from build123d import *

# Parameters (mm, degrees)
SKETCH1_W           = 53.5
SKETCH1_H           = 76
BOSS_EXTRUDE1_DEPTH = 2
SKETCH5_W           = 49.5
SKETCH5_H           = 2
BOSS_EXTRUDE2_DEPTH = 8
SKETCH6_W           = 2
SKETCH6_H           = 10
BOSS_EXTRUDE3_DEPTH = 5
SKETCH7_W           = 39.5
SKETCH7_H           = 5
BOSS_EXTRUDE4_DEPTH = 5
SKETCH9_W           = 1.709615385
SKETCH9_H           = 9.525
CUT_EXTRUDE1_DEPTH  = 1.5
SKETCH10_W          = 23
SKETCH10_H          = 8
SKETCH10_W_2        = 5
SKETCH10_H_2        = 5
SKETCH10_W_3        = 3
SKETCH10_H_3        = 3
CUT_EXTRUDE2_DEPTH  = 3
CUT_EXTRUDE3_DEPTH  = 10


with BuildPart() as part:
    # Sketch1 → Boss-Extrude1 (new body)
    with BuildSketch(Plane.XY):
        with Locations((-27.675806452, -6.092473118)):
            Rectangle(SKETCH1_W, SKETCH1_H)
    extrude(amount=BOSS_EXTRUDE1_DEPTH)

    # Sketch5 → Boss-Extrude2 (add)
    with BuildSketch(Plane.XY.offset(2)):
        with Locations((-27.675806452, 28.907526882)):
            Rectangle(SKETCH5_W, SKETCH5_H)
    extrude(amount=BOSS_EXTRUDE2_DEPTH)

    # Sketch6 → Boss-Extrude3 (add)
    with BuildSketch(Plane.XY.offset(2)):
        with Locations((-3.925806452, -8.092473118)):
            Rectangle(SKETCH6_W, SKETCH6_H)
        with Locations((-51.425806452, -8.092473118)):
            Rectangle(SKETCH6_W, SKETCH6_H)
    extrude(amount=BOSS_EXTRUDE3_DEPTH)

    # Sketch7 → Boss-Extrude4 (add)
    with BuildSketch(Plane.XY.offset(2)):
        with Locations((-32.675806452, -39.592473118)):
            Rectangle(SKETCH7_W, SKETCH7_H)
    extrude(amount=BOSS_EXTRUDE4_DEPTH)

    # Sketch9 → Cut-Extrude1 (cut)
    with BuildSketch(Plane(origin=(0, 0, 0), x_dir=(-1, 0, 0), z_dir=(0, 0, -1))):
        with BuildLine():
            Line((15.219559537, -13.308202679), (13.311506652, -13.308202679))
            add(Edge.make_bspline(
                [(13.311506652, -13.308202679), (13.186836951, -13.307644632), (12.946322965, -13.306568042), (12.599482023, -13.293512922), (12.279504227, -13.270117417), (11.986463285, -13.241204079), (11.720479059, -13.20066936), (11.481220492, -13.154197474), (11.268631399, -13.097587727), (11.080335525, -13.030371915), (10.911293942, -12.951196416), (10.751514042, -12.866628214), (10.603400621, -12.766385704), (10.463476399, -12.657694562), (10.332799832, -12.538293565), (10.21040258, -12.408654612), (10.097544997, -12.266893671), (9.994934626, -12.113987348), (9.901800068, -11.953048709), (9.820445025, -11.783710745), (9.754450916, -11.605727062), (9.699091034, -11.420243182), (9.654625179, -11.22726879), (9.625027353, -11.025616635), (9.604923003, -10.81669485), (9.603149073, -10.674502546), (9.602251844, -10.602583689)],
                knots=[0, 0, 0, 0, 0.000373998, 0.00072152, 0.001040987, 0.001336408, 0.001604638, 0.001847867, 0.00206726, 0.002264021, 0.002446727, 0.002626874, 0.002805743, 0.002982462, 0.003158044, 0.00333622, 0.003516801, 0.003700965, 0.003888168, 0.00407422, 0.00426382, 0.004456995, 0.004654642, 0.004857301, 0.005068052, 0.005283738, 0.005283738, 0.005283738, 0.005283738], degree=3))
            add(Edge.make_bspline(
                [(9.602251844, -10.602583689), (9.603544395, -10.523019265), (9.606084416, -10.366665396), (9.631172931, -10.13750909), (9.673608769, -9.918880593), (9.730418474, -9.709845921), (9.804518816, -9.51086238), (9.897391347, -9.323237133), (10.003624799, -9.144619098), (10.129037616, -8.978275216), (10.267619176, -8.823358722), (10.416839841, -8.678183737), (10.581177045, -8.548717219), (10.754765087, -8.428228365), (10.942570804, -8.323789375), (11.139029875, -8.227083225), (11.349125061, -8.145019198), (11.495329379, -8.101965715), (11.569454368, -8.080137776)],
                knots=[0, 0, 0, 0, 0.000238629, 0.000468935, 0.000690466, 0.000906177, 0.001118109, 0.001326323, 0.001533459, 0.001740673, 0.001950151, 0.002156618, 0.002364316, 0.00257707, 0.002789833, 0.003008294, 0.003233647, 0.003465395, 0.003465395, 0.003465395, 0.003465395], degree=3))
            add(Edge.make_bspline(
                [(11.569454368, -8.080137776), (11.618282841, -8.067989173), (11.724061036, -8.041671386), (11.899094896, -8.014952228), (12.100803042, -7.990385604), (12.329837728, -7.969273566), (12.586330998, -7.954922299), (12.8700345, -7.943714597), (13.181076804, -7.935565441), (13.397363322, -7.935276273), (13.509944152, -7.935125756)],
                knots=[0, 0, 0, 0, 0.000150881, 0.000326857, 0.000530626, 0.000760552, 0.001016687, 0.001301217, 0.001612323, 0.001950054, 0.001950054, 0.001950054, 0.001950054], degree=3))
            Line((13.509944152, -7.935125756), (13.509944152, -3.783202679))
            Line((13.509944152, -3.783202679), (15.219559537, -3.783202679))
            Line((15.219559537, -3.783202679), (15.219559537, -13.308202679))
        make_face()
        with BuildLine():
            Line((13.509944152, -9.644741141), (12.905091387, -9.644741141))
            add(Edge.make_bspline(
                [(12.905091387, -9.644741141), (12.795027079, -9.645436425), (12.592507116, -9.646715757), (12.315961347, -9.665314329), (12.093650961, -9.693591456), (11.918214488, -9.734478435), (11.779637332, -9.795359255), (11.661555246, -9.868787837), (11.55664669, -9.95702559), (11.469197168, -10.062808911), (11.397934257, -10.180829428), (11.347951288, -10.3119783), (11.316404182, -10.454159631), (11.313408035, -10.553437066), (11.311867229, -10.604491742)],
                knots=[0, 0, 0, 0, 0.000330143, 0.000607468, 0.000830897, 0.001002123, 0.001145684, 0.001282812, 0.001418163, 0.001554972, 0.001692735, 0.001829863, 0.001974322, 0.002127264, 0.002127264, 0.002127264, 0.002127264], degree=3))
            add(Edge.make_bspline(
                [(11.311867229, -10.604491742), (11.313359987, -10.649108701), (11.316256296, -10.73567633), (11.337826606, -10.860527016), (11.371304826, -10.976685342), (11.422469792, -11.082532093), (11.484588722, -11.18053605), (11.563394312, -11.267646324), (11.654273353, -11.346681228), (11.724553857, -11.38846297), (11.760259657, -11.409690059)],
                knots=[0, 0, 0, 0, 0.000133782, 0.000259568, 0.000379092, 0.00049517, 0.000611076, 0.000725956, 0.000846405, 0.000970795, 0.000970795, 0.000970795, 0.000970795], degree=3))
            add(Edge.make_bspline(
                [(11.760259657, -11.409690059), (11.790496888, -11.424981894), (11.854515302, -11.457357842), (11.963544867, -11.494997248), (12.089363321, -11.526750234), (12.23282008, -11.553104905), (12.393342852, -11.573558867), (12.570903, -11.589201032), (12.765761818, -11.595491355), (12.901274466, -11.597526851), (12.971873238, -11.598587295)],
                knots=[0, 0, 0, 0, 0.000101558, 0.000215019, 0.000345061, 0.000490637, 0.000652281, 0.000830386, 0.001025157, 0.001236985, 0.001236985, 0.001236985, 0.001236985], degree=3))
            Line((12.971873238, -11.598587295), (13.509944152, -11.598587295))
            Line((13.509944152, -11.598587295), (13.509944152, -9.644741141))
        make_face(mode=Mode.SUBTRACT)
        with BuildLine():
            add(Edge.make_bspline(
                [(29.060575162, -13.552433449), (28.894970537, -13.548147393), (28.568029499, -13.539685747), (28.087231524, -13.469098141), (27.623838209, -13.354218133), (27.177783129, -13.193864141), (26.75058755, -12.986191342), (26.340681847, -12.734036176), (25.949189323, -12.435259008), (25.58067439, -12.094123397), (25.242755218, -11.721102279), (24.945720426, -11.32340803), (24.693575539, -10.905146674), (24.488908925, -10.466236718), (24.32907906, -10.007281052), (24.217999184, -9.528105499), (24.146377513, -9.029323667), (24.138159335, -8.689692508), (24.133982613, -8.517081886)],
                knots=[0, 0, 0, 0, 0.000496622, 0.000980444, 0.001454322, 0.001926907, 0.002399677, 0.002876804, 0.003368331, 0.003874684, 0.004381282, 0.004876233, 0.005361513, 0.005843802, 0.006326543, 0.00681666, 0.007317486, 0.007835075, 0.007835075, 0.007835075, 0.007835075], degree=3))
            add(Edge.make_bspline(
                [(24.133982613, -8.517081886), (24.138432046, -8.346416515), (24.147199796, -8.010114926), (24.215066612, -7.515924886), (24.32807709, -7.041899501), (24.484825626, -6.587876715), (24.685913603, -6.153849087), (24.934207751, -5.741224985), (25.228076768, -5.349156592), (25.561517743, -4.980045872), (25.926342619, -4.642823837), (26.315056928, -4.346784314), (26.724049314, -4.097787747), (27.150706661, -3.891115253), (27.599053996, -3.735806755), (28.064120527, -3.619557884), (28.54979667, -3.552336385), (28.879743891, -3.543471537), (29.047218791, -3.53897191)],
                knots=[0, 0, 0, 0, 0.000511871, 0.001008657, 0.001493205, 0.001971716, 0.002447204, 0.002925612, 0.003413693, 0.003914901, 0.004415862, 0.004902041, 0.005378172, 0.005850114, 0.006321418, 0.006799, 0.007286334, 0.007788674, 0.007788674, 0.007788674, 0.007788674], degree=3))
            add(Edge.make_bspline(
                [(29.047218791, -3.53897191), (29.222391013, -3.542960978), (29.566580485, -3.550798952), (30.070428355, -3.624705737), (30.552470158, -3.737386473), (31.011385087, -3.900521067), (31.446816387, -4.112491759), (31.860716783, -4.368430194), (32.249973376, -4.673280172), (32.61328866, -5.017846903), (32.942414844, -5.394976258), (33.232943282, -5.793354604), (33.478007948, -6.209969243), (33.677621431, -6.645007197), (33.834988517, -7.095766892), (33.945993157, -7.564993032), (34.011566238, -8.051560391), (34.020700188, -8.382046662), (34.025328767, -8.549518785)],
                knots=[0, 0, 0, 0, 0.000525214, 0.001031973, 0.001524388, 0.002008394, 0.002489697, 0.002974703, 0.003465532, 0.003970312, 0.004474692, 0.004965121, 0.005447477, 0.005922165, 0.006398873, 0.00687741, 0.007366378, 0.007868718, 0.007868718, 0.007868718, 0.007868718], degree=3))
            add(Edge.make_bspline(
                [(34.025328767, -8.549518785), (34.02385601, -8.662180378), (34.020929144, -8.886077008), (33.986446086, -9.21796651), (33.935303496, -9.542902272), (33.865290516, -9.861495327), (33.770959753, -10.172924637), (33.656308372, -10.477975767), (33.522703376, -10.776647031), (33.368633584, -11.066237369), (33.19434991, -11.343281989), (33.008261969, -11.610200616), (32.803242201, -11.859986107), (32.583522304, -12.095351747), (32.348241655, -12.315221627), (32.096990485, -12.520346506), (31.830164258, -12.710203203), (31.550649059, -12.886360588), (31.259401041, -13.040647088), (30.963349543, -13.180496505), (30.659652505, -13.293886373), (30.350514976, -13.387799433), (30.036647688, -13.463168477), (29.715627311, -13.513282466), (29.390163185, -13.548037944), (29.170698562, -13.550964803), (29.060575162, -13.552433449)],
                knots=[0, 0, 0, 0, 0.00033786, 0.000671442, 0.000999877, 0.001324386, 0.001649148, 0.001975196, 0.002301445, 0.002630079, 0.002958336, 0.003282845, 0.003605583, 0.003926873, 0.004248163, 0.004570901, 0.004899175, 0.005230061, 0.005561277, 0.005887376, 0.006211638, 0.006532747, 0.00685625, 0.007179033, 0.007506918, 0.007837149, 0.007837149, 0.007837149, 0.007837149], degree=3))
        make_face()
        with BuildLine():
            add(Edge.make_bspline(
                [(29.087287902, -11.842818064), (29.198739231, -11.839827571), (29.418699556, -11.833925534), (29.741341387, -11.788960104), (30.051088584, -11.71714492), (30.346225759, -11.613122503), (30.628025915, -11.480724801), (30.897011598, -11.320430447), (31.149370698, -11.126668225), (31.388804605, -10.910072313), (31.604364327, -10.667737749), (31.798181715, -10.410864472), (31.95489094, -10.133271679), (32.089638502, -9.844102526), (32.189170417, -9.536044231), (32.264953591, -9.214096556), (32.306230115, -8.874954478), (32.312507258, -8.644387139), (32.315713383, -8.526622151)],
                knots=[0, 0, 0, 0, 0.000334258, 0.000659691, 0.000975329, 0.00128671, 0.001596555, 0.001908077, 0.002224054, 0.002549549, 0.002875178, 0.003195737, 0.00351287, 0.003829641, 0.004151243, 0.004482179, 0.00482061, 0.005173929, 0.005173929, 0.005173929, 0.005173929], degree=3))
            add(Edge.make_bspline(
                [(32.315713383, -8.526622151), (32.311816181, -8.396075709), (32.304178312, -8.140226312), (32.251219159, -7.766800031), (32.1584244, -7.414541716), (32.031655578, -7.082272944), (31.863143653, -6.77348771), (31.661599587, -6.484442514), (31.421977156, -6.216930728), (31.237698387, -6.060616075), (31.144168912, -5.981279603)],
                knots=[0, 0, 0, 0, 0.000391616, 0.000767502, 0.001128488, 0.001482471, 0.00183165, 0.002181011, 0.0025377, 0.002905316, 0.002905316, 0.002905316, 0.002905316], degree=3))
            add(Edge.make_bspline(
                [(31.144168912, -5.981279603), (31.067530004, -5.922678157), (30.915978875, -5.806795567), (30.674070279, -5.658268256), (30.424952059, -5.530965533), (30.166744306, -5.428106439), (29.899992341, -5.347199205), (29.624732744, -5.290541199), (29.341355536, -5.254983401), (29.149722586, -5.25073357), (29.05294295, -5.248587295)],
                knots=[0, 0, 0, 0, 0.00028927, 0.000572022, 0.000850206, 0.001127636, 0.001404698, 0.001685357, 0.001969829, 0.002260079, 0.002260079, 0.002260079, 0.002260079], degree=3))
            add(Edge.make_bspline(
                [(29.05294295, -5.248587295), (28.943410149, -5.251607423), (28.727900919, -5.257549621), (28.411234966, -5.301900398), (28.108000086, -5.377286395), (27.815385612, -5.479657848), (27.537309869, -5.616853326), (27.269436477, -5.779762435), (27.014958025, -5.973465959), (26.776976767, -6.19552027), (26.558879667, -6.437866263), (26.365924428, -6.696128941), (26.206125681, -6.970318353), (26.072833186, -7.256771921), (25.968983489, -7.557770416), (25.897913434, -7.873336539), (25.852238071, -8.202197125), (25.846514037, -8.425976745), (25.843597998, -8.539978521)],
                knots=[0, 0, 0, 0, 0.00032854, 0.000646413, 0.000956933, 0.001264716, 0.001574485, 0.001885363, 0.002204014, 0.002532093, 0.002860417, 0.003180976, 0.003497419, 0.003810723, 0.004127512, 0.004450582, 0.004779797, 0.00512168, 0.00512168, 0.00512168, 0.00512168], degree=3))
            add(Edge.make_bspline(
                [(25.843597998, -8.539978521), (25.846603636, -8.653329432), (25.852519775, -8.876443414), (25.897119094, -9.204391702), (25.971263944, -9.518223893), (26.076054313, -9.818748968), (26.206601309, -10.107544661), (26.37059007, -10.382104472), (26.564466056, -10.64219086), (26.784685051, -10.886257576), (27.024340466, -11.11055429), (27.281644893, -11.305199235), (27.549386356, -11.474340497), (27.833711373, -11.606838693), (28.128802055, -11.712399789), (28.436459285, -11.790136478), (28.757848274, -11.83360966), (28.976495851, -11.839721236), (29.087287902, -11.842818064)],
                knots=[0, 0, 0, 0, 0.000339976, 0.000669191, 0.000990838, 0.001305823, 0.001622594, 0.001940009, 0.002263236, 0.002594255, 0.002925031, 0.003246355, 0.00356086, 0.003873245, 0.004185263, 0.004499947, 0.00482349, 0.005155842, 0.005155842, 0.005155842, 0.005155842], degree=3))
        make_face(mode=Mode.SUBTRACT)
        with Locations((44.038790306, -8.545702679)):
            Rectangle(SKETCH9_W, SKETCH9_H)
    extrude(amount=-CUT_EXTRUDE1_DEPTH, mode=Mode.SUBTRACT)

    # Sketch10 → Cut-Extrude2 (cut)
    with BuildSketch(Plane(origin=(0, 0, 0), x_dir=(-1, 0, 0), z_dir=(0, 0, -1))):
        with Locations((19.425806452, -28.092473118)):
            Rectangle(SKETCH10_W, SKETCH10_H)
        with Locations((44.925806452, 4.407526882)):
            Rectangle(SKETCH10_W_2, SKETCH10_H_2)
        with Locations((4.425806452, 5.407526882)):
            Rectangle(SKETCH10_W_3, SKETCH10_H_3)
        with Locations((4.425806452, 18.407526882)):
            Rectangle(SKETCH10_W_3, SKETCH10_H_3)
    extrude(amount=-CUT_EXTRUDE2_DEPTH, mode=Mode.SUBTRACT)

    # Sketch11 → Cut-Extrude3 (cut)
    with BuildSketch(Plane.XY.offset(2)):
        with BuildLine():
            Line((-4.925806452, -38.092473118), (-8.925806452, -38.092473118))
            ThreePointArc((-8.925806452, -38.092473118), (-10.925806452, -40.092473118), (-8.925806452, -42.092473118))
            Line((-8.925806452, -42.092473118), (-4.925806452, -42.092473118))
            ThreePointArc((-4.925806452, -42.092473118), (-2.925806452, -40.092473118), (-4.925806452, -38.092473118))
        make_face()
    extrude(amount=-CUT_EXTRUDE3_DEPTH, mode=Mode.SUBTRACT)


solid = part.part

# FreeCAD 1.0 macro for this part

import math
import FreeCAD as App
import Part
import Sketcher
from FreeCAD import Vector

doc = App.newDocument("Part")
body = doc.addObject("PartDesign::Body", "Body")

sketch1 = body.newObject("Sketcher::SketchObject", "Sketch")
sketch1.AttachmentSupport = (doc.getObject("XY_Plane"), [""])
sketch1.MapMode = "FlatFace"
sketch1.addGeometry(Part.LineSegment(Vector(-54, 32, 0), Vector(-54, -44, 0)), False)
sketch1.addGeometry(Part.LineSegment(Vector(-54, -44, 0), Vector(-1, -44, 0)), False)
sketch1.addGeometry(Part.LineSegment(Vector(-1, -44, 0), Vector(-1, 32, 0)), False)
sketch1.addGeometry(Part.LineSegment(Vector(-1, 32, 0), Vector(-54, 32, 0)), False)
sketch1.addConstraint(Sketcher.Constraint("Coincident", 0, 2, 1, 1))
sketch1.addConstraint(Sketcher.Constraint("Coincident", 1, 2, 2, 1))
sketch1.addConstraint(Sketcher.Constraint("Coincident", 2, 2, 3, 1))
sketch1.addConstraint(Sketcher.Constraint("Coincident", 3, 2, 0, 1))
sketch1.addConstraint(Sketcher.Constraint("Vertical", 0))
sketch1.addConstraint(Sketcher.Constraint("Horizontal", 1))
sketch1.addConstraint(Sketcher.Constraint("Vertical", 2))
sketch1.addConstraint(Sketcher.Constraint("Horizontal", 3))
sketch1.addConstraint(Sketcher.Constraint("DistanceY", 0, 2, 0, 1, 76.0))
sketch1.addConstraint(Sketcher.Constraint("DistanceX", 1, 1, 1, 2, 53.5))
sketch1.addConstraint(Sketcher.Constraint("DistanceX", 0, 2, -1, 1, 54.425806))
sketch1.addConstraint(Sketcher.Constraint("DistanceY", 0, 2, -1, 1, 44.092473))
pad1 = body.newObject("PartDesign::Pad", "Pad")
pad1.Profile = sketch1
pad1.Length = 2

sketch2 = body.newObject("Sketcher::SketchObject", "Sketch001")
sketch2.AttachmentSupport = (doc.getObject("XY_Plane"), [""])
sketch2.MapMode = "FlatFace"
sketch2.AttachmentOffset = App.Placement(Vector(0, 0, 2), App.Rotation())
sketch2.addGeometry(Part.LineSegment(Vector(-52.4, 29.9, 0), Vector(-52.4, 27.9, 0)), False)
sketch2.addGeometry(Part.LineSegment(Vector(-52.4, 27.9, 0), Vector(-2.9, 27.9, 0)), False)
sketch2.addGeometry(Part.LineSegment(Vector(-2.9, 27.9, 0), Vector(-2.9, 29.9, 0)), False)
sketch2.addGeometry(Part.LineSegment(Vector(-2.9, 29.9, 0), Vector(-52.4, 29.9, 0)), False)
sketch2.addConstraint(Sketcher.Constraint("Coincident", 0, 2, 1, 1))
sketch2.addConstraint(Sketcher.Constraint("Coincident", 1, 2, 2, 1))
sketch2.addConstraint(Sketcher.Constraint("Coincident", 2, 2, 3, 1))
sketch2.addConstraint(Sketcher.Constraint("Coincident", 3, 2, 0, 1))
sketch2.addConstraint(Sketcher.Constraint("Vertical", 0))
sketch2.addConstraint(Sketcher.Constraint("Horizontal", 1))
sketch2.addConstraint(Sketcher.Constraint("Vertical", 2))
sketch2.addConstraint(Sketcher.Constraint("Horizontal", 3))
sketch2.addConstraint(Sketcher.Constraint("DistanceY", 0, 2, 0, 1, 2.0))
sketch2.addConstraint(Sketcher.Constraint("DistanceX", 1, 1, 1, 2, 49.5))
sketch2.addConstraint(Sketcher.Constraint("DistanceX", 0, 2, -1, 1, 52.425806))
sketch2.addConstraint(Sketcher.Constraint("DistanceY", -1, 1, 0, 2, 27.907527))
pad2 = body.newObject("PartDesign::Pad", "Pad001")
pad2.Profile = sketch2
pad2.Length = 8

sketch3 = body.newObject("Sketcher::SketchObject", "Sketch002")
sketch3.AttachmentSupport = (doc.getObject("XY_Plane"), [""])
sketch3.MapMode = "FlatFace"
sketch3.AttachmentOffset = App.Placement(Vector(0, 0, 2), App.Rotation())
sketch3.addGeometry(Part.LineSegment(Vector(-4.9, -3.1, 0), Vector(-4.9, -13.1, 0)), False)
sketch3.addGeometry(Part.LineSegment(Vector(-4.9, -13.1, 0), Vector(-2.9, -13.1, 0)), False)
sketch3.addGeometry(Part.LineSegment(Vector(-2.9, -13.1, 0), Vector(-2.9, -3.1, 0)), False)
sketch3.addGeometry(Part.LineSegment(Vector(-2.9, -3.1, 0), Vector(-4.9, -3.1, 0)), False)
sketch3.addGeometry(Part.LineSegment(Vector(-52.4, -3.1, 0), Vector(-52.4, -13.1, 0)), False)
sketch3.addGeometry(Part.LineSegment(Vector(-52.4, -13.1, 0), Vector(-50.4, -13.1, 0)), False)
sketch3.addGeometry(Part.LineSegment(Vector(-50.4, -13.1, 0), Vector(-50.4, -3.1, 0)), False)
sketch3.addGeometry(Part.LineSegment(Vector(-50.4, -3.1, 0), Vector(-52.4, -3.1, 0)), False)
sketch3.addConstraint(Sketcher.Constraint("Coincident", 0, 2, 1, 1))
sketch3.addConstraint(Sketcher.Constraint("Coincident", 1, 2, 2, 1))
sketch3.addConstraint(Sketcher.Constraint("Coincident", 2, 2, 3, 1))
sketch3.addConstraint(Sketcher.Constraint("Coincident", 3, 2, 0, 1))
sketch3.addConstraint(Sketcher.Constraint("Coincident", 4, 2, 5, 1))
sketch3.addConstraint(Sketcher.Constraint("Coincident", 5, 2, 6, 1))
sketch3.addConstraint(Sketcher.Constraint("Coincident", 6, 2, 7, 1))
sketch3.addConstraint(Sketcher.Constraint("Coincident", 7, 2, 4, 1))
sketch3.addConstraint(Sketcher.Constraint("Vertical", 0))
sketch3.addConstraint(Sketcher.Constraint("Horizontal", 1))
sketch3.addConstraint(Sketcher.Constraint("Vertical", 2))
sketch3.addConstraint(Sketcher.Constraint("Horizontal", 3))
sketch3.addConstraint(Sketcher.Constraint("Vertical", 4))
sketch3.addConstraint(Sketcher.Constraint("Horizontal", 5))
sketch3.addConstraint(Sketcher.Constraint("Vertical", 6))
sketch3.addConstraint(Sketcher.Constraint("Horizontal", 7))
sketch3.addConstraint(Sketcher.Constraint("Horizontal", 1, 2, 4, 2))
sketch3.addConstraint(Sketcher.Constraint("Horizontal", 3, 2, 6, 2))
sketch3.addConstraint(Sketcher.Constraint("Equal", 3, 5))
sketch3.addConstraint(Sketcher.Constraint("DistanceX", 1, 1, 1, 2, 2.0))
sketch3.addConstraint(Sketcher.Constraint("DistanceY", 0, 2, 0, 1, 10.0))
sketch3.addConstraint(Sketcher.Constraint("DistanceX", 4, 2, 0, 2, 47.5))
sketch3.addConstraint(Sketcher.Constraint("DistanceX", 0, 2, -1, 1, 4.925806))
sketch3.addConstraint(Sketcher.Constraint("DistanceY", 0, 2, -1, 1, 13.092473))
pad3 = body.newObject("PartDesign::Pad", "Pad002")
pad3.Profile = sketch3
pad3.Length = 5

sketch4 = body.newObject("Sketcher::SketchObject", "Sketch003")
sketch4.AttachmentSupport = (doc.getObject("XY_Plane"), [""])
sketch4.MapMode = "FlatFace"
sketch4.AttachmentOffset = App.Placement(Vector(0, 0, 2), App.Rotation())
sketch4.addGeometry(Part.LineSegment(Vector(-52, -37, 0), Vector(-52, -42, 0)), False)
sketch4.addGeometry(Part.LineSegment(Vector(-52, -42, 0), Vector(-13, -42, 0)), False)
sketch4.addGeometry(Part.LineSegment(Vector(-13, -42, 0), Vector(-13, -37, 0)), False)
sketch4.addGeometry(Part.LineSegment(Vector(-13, -37, 0), Vector(-52, -37, 0)), False)
sketch4.addConstraint(Sketcher.Constraint("Coincident", 0, 2, 1, 1))
sketch4.addConstraint(Sketcher.Constraint("Coincident", 1, 2, 2, 1))
sketch4.addConstraint(Sketcher.Constraint("Coincident", 2, 2, 3, 1))
sketch4.addConstraint(Sketcher.Constraint("Coincident", 3, 2, 0, 1))
sketch4.addConstraint(Sketcher.Constraint("Vertical", 0))
sketch4.addConstraint(Sketcher.Constraint("Horizontal", 1))
sketch4.addConstraint(Sketcher.Constraint("Vertical", 2))
sketch4.addConstraint(Sketcher.Constraint("Horizontal", 3))
sketch4.addConstraint(Sketcher.Constraint("DistanceY", 0, 2, 0, 1, 5.0))
sketch4.addConstraint(Sketcher.Constraint("DistanceX", 1, 1, 1, 2, 39.5))
sketch4.addConstraint(Sketcher.Constraint("DistanceX", 0, 2, -1, 1, 52.425806))
sketch4.addConstraint(Sketcher.Constraint("DistanceY", 0, 2, -1, 1, 42.092473))
pad4 = body.newObject("PartDesign::Pad", "Pad003")
pad4.Profile = sketch4
pad4.Length = 5

sketch5 = body.newObject("Sketcher::SketchObject", "Sketch004")
sketch5.AttachmentSupport = (doc.getObject("XY_Plane"), [""])
sketch5.MapMode = "FlatFace"
sketch5.addGeometry(Part.LineSegment(Vector(-13.311507, -13.308203, 0), Vector(-15.21956, -13.308203, 0)), False)
sketch5.addGeometry(Part.LineSegment(Vector(-15.21956, -13.308203, 0), Vector(-15.21956, -3.783203, 0)), False)
sketch5.addGeometry(Part.LineSegment(Vector(-15.21956, -3.783203, 0), Vector(-13.509944, -3.783203, 0)), False)
sketch5.addGeometry(Part.LineSegment(Vector(-13.509944, -3.783203, 0), Vector(-13.509944, -7.935126, 0)), False)
sketch5.addGeometry(Part.BSplineCurve([Vector(-11.569454, -8.080138, 0), Vector(-11.618283, -8.067989, 0), Vector(-11.724061, -8.041671, 0), Vector(-11.899095, -8.014952, 0), Vector(-12.100803, -7.990386, 0), Vector(-12.329838, -7.969274, 0), Vector(-12.586331, -7.954922, 0), Vector(-12.870034, -7.943715, 0), Vector(-13.181077, -7.935565, 0), Vector(-13.397363, -7.935276, 0), Vector(-13.509944, -7.935126, 0)], [4, 1, 1, 1, 1, 1, 1, 1, 4], [0, 0.000150881, 0.000326857, 0.000530626, 0.000760552, 0.001016687, 0.001301217, 0.001612323, 0.001950054], False, 3, [1, 1, 1, 1, 1, 1, 1, 1, 1, 1, 1], False), False)
sketch5.addGeometry(Part.BSplineCurve([Vector(-9.602252, -10.602584, 0), Vector(-9.603544, -10.523019, 0), Vector(-9.606084, -10.366665, 0), Vector(-9.631173, -10.137509, 0), Vector(-9.673609, -9.918881, 0), Vector(-9.730418, -9.709846, 0), Vector(-9.804519, -9.510862, 0), Vector(-9.897391, -9.323237, 0), Vector(-10.003625, -9.144619, 0), Vector(-10.129038, -8.978275, 0), Vector(-10.267619, -8.823359, 0), Vector(-10.41684, -8.678184, 0), Vector(-10.581177, -8.548717, 0), Vector(-10.754765, -8.428228, 0), Vector(-10.942571, -8.323789, 0), Vector(-11.13903, -8.227083, 0), Vector(-11.349125, -8.145019, 0), Vector(-11.495329, -8.101966, 0), Vector(-11.569454, -8.080138, 0)], [4, 1, 1, 1, 1, 1, 1, 1, 1, 1, 1, 1, 1, 1, 1, 1, 4], [0, 0.000238629, 0.000468935, 0.000690466, 0.000906177, 0.001118109, 0.001326323, 0.001533459, 0.001740673, 0.001950151, 0.002156618, 0.002364316, 0.00257707, 0.002789833, 0.003008294, 0.003233647, 0.003465395], False, 3, [1, 1, 1, 1, 1, 1, 1, 1, 1, 1, 1, 1, 1, 1, 1, 1, 1, 1, 1], False), False)
sketch5.addGeometry(Part.BSplineCurve([Vector(-13.311507, -13.308203, 0), Vector(-13.186837, -13.307645, 0), Vector(-12.946323, -13.306568, 0), Vector(-12.599482, -13.293513, 0), Vector(-12.279504, -13.270117, 0), Vector(-11.986463, -13.241204, 0), Vector(-11.720479, -13.200669, 0), Vector(-11.48122, -13.154197, 0), Vector(-11.268631, -13.097588, 0), Vector(-11.080336, -13.030372, 0), Vector(-10.911294, -12.951196, 0), Vector(-10.751514, -12.866628, 0), Vector(-10.603401, -12.766386, 0), Vector(-10.463476, -12.657695, 0), Vector(-10.3328, -12.538294, 0), Vector(-10.210403, -12.408655, 0), Vector(-10.097545, -12.266894, 0), Vector(-9.994935, -12.113987, 0), Vector(-9.9018, -11.953049, 0), Vector(-9.820445, -11.783711, 0), Vector(-9.754451, -11.605727, 0), Vector(-9.699091, -11.420243, 0), Vector(-9.654625, -11.227269, 0), Vector(-9.625027, -11.025617, 0), Vector(-9.604923, -10.816695, 0), Vector(-9.603149, -10.674503, 0), Vector(-9.602252, -10.602584, 0)], [4, 1, 1, 1, 1, 1, 1, 1, 1, 1, 1, 1, 1, 1, 1, 1, 1, 1, 1, 1, 1, 1, 1, 1, 4], [0, 0.000373998, 0.00072152, 0.001040987, 0.001336408, 0.001604638, 0.001847867, 0.00206726, 0.002264021, 0.002446727, 0.002626874, 0.002805743, 0.002982462, 0.003158044, 0.00333622, 0.003516801, 0.003700965, 0.003888168, 0.00407422, 0.00426382, 0.004456995, 0.004654642, 0.004857301, 0.005068052, 0.005283738], False, 3, [1, 1, 1, 1, 1, 1, 1, 1, 1, 1, 1, 1, 1, 1, 1, 1, 1, 1, 1, 1, 1, 1, 1, 1, 1, 1, 1], False), False)
sketch5.addGeometry(Part.LineSegment(Vector(-13.509944, -9.644741, 0), Vector(-13.509944, -11.598587, 0)), False)
sketch5.addGeometry(Part.LineSegment(Vector(-13.509944, -11.598587, 0), Vector(-12.971873, -11.598587, 0)), False)
sketch5.addGeometry(Part.BSplineCurve([Vector(-11.76026, -11.40969, 0), Vector(-11.790497, -11.424982, 0), Vector(-11.854515, -11.457358, 0), Vector(-11.963545, -11.494997, 0), Vector(-12.089363, -11.52675, 0), Vector(-12.23282, -11.553105, 0), Vector(-12.393343, -11.573559, 0), Vector(-12.570903, -11.589201, 0), Vector(-12.765762, -11.595491, 0), Vector(-12.901274, -11.597527, 0), Vector(-12.971873, -11.598587, 0)], [4, 1, 1, 1, 1, 1, 1, 1, 4], [0, 0.000101558, 0.000215019, 0.000345061, 0.000490637, 0.000652281, 0.000830386, 0.001025157, 0.001236985], False, 3, [1, 1, 1, 1, 1, 1, 1, 1, 1, 1, 1], False), False)
sketch5.addGeometry(Part.BSplineCurve([Vector(-11.311867, -10.604492, 0), Vector(-11.31336, -10.649109, 0), Vector(-11.316256, -10.735676, 0), Vector(-11.337827, -10.860527, 0), Vector(-11.371305, -10.976685, 0), Vector(-11.42247, -11.082532, 0), Vector(-11.484589, -11.180536, 0), Vector(-11.563394, -11.267646, 0), Vector(-11.654273, -11.346681, 0), Vector(-11.724554, -11.388463, 0), Vector(-11.76026, -11.40969, 0)], [4, 1, 1, 1, 1, 1, 1, 1, 4], [0, 0.000133782, 0.000259568, 0.000379092, 0.00049517, 0.000611076, 0.000725956, 0.000846405, 0.000970795], False, 3, [1, 1, 1, 1, 1, 1, 1, 1, 1, 1, 1], False), False)
sketch5.addGeometry(Part.BSplineCurve([Vector(-12.905091, -9.644741, 0), Vector(-12.795027, -9.645436, 0), Vector(-12.592507, -9.646716, 0), Vector(-12.315961, -9.665314, 0), Vector(-12.093651, -9.693591, 0), Vector(-11.918214, -9.734478, 0), Vector(-11.779637, -9.795359, 0), Vector(-11.661555, -9.868788, 0), Vector(-11.556647, -9.957026, 0), Vector(-11.469197, -10.062809, 0), Vector(-11.397934, -10.180829, 0), Vector(-11.347951, -10.311978, 0), Vector(-11.316404, -10.45416, 0), Vector(-11.313408, -10.553437, 0), Vector(-11.311867, -10.604492, 0)], [4, 1, 1, 1, 1, 1, 1, 1, 1, 1, 1, 1, 4], [0, 0.000330143, 0.000607468, 0.000830897, 0.001002123, 0.001145684, 0.001282812, 0.001418163, 0.001554972, 0.001692735, 0.001829863, 0.001974322, 0.002127264], False, 3, [1, 1, 1, 1, 1, 1, 1, 1, 1, 1, 1, 1, 1, 1, 1], False), False)
sketch5.addGeometry(Part.LineSegment(Vector(-12.905091, -9.644741, 0), Vector(-13.509944, -9.644741, 0)), False)
sketch5.addGeometry(Part.BSplineCurve([Vector(-29.060575, -13.552433, 0), Vector(-28.894971, -13.548147, 0), Vector(-28.568029, -13.539686, 0), Vector(-28.087232, -13.469098, 0), Vector(-27.623838, -13.354218, 0), Vector(-27.177783, -13.193864, 0), Vector(-26.750588, -12.986191, 0), Vector(-26.340682, -12.734036, 0), Vector(-25.949189, -12.435259, 0), Vector(-25.580674, -12.094123, 0), Vector(-25.242755, -11.721102, 0), Vector(-24.94572, -11.323408, 0), Vector(-24.693576, -10.905147, 0), Vector(-24.488909, -10.466237, 0), Vector(-24.329079, -10.007281, 0), Vector(-24.217999, -9.528105, 0), Vector(-24.146378, -9.029324, 0), Vector(-24.138159, -8.689693, 0), Vector(-24.133983, -8.517082, 0)], [4, 1, 1, 1, 1, 1, 1, 1, 1, 1, 1, 1, 1, 1, 1, 1, 4], [0, 0.000496622, 0.000980444, 0.001454322, 0.001926907, 0.002399677, 0.002876804, 0.003368331, 0.003874684, 0.004381282, 0.004876233, 0.005361513, 0.005843802, 0.006326543, 0.00681666, 0.007317486, 0.007835075], False, 3, [1, 1, 1, 1, 1, 1, 1, 1, 1, 1, 1, 1, 1, 1, 1, 1, 1, 1, 1], False), False)
sketch5.addGeometry(Part.BSplineCurve([Vector(-34.025329, -8.549519, 0), Vector(-34.023856, -8.66218, 0), Vector(-34.020929, -8.886077, 0), Vector(-33.986446, -9.217967, 0), Vector(-33.935303, -9.542902, 0), Vector(-33.865291, -9.861495, 0), Vector(-33.77096, -10.172925, 0), Vector(-33.656308, -10.477976, 0), Vector(-33.522703, -10.776647, 0), Vector(-33.368634, -11.066237, 0), Vector(-33.19435, -11.343282, 0), Vector(-33.008262, -11.610201, 0), Vector(-32.803242, -11.859986, 0), Vector(-32.583522, -12.095352, 0), Vector(-32.348242, -12.315222, 0), Vector(-32.09699, -12.520347, 0), Vector(-31.830164, -12.710203, 0), Vector(-31.550649, -12.886361, 0), Vector(-31.259401, -13.040647, 0), Vector(-30.96335, -13.180497, 0), Vector(-30.659653, -13.293886, 0), Vector(-30.350515, -13.387799, 0), Vector(-30.036648, -13.463168, 0), Vector(-29.715627, -13.513282, 0), Vector(-29.390163, -13.548038, 0), Vector(-29.170699, -13.550965, 0), Vector(-29.060575, -13.552433, 0)], [4, 1, 1, 1, 1, 1, 1, 1, 1, 1, 1, 1, 1, 1, 1, 1, 1, 1, 1, 1, 1, 1, 1, 1, 4], [0, 0.00033786, 0.000671442, 0.000999877, 0.001324386, 0.001649148, 0.001975196, 0.002301445, 0.002630079, 0.002958336, 0.003282845, 0.003605583, 0.003926873, 0.004248163, 0.004570901, 0.004899175, 0.005230061, 0.005561277, 0.005887376, 0.006211638, 0.006532747, 0.00685625, 0.007179033, 0.007506918, 0.007837149], False, 3, [1, 1, 1, 1, 1, 1, 1, 1, 1, 1, 1, 1, 1, 1, 1, 1, 1, 1, 1, 1, 1, 1, 1, 1, 1, 1, 1], False), False)
sketch5.addGeometry(Part.BSplineCurve([Vector(-29.047219, -3.538972, 0), Vector(-29.222391, -3.542961, 0), Vector(-29.56658, -3.550799, 0), Vector(-30.070428, -3.624706, 0), Vector(-30.55247, -3.737386, 0), Vector(-31.011385, -3.900521, 0), Vector(-31.446816, -4.112492, 0), Vector(-31.860717, -4.36843, 0), Vector(-32.249973, -4.67328, 0), Vector(-32.613289, -5.017847, 0), Vector(-32.942415, -5.394976, 0), Vector(-33.232943, -5.793355, 0), Vector(-33.478008, -6.209969, 0), Vector(-33.677621, -6.645007, 0), Vector(-33.834989, -7.095767, 0), Vector(-33.945993, -7.564993, 0), Vector(-34.011566, -8.05156, 0), Vector(-34.0207, -8.382047, 0), Vector(-34.025329, -8.549519, 0)], [4, 1, 1, 1, 1, 1, 1, 1, 1, 1, 1, 1, 1, 1, 1, 1, 4], [0, 0.000525214, 0.001031973, 0.001524388, 0.002008394, 0.002489697, 0.002974703, 0.003465532, 0.003970312, 0.004474692, 0.004965121, 0.005447477, 0.005922165, 0.006398873, 0.00687741, 0.007366378, 0.007868718], False, 3, [1, 1, 1, 1, 1, 1, 1, 1, 1, 1, 1, 1, 1, 1, 1, 1, 1, 1, 1], False), False)
sketch5.addGeometry(Part.BSplineCurve([Vector(-24.133983, -8.517082, 0), Vector(-24.138432, -8.346417, 0), Vector(-24.1472, -8.010115, 0), Vector(-24.215067, -7.515925, 0), Vector(-24.328077, -7.0419, 0), Vector(-24.484826, -6.587877, 0), Vector(-24.685914, -6.153849, 0), Vector(-24.934208, -5.741225, 0), Vector(-25.228077, -5.349157, 0), Vector(-25.561518, -4.980046, 0), Vector(-25.926343, -4.642824, 0), Vector(-26.315057, -4.346784, 0), Vector(-26.724049, -4.097788, 0), Vector(-27.150707, -3.891115, 0), Vector(-27.599054, -3.735807, 0), Vector(-28.064121, -3.619558, 0), Vector(-28.549797, -3.552336, 0), Vector(-28.879744, -3.543472, 0), Vector(-29.047219, -3.538972, 0)], [4, 1, 1, 1, 1, 1, 1, 1, 1, 1, 1, 1, 1, 1, 1, 1, 4], [0, 0.000511871, 0.001008657, 0.001493205, 0.001971716, 0.002447204, 0.002925612, 0.003413693, 0.003914901, 0.004415862, 0.004902041, 0.005378172, 0.005850114, 0.006321418, 0.006799, 0.007286334, 0.007788674], False, 3, [1, 1, 1, 1, 1, 1, 1, 1, 1, 1, 1, 1, 1, 1, 1, 1, 1, 1, 1], False), False)
sketch5.addGeometry(Part.BSplineCurve([Vector(-25.843598, -8.539979, 0), Vector(-25.846604, -8.653329, 0), Vector(-25.85252, -8.876443, 0), Vector(-25.897119, -9.204392, 0), Vector(-25.971264, -9.518224, 0), Vector(-26.076054, -9.818749, 0), Vector(-26.206601, -10.107545, 0), Vector(-26.37059, -10.382104, 0), Vector(-26.564466, -10.642191, 0), Vector(-26.784685, -10.886258, 0), Vector(-27.02434, -11.110554, 0), Vector(-27.281645, -11.305199, 0), Vector(-27.549386, -11.47434, 0), Vector(-27.833711, -11.606839, 0), Vector(-28.128802, -11.7124, 0), Vector(-28.436459, -11.790136, 0), Vector(-28.757848, -11.83361, 0), Vector(-28.976496, -11.839721, 0), Vector(-29.087288, -11.842818, 0)], [4, 1, 1, 1, 1, 1, 1, 1, 1, 1, 1, 1, 1, 1, 1, 1, 4], [0, 0.000339976, 0.000669191, 0.000990838, 0.001305823, 0.001622594, 0.001940009, 0.002263236, 0.002594255, 0.002925031, 0.003246355, 0.00356086, 0.003873245, 0.004185263, 0.004499947, 0.00482349, 0.005155842], False, 3, [1, 1, 1, 1, 1, 1, 1, 1, 1, 1, 1, 1, 1, 1, 1, 1, 1, 1, 1], False), False)
sketch5.addGeometry(Part.BSplineCurve([Vector(-29.052943, -5.248587, 0), Vector(-28.94341, -5.251607, 0), Vector(-28.727901, -5.25755, 0), Vector(-28.411235, -5.3019, 0), Vector(-28.108, -5.377286, 0), Vector(-27.815386, -5.479658, 0), Vector(-27.53731, -5.616853, 0), Vector(-27.269436, -5.779762, 0), Vector(-27.014958, -5.973466, 0), Vector(-26.776977, -6.19552, 0), Vector(-26.55888, -6.437866, 0), Vector(-26.365924, -6.696129, 0), Vector(-26.206126, -6.970318, 0), Vector(-26.072833, -7.256772, 0), Vector(-25.968983, -7.55777, 0), Vector(-25.897913, -7.873337, 0), Vector(-25.852238, -8.202197, 0), Vector(-25.846514, -8.425977, 0), Vector(-25.843598, -8.539979, 0)], [4, 1, 1, 1, 1, 1, 1, 1, 1, 1, 1, 1, 1, 1, 1, 1, 4], [0, 0.00032854, 0.000646413, 0.000956933, 0.001264716, 0.001574485, 0.001885363, 0.002204014, 0.002532093, 0.002860417, 0.003180976, 0.003497419, 0.003810723, 0.004127512, 0.004450582, 0.004779797, 0.00512168], False, 3, [1, 1, 1, 1, 1, 1, 1, 1, 1, 1, 1, 1, 1, 1, 1, 1, 1, 1, 1], False), False)
sketch5.addGeometry(Part.BSplineCurve([Vector(-31.144169, -5.98128, 0), Vector(-31.06753, -5.922678, 0), Vector(-30.915979, -5.806796, 0), Vector(-30.67407, -5.658268, 0), Vector(-30.424952, -5.530966, 0), Vector(-30.166744, -5.428106, 0), Vector(-29.899992, -5.347199, 0), Vector(-29.624733, -5.290541, 0), Vector(-29.341356, -5.254983, 0), Vector(-29.149723, -5.250734, 0), Vector(-29.052943, -5.248587, 0)], [4, 1, 1, 1, 1, 1, 1, 1, 4], [0, 0.00028927, 0.000572022, 0.000850206, 0.001127636, 0.001404698, 0.001685357, 0.001969829, 0.002260079], False, 3, [1, 1, 1, 1, 1, 1, 1, 1, 1, 1, 1], False), False)
sketch5.addGeometry(Part.BSplineCurve([Vector(-32.315713, -8.526622, 0), Vector(-32.311816, -8.396076, 0), Vector(-32.304178, -8.140226, 0), Vector(-32.251219, -7.7668, 0), Vector(-32.158424, -7.414542, 0), Vector(-32.031656, -7.082273, 0), Vector(-31.863144, -6.773488, 0), Vector(-31.6616, -6.484443, 0), Vector(-31.421977, -6.216931, 0), Vector(-31.237698, -6.060616, 0), Vector(-31.144169, -5.98128, 0)], [4, 1, 1, 1, 1, 1, 1, 1, 4], [0, 0.000391616, 0.000767502, 0.001128488, 0.001482471, 0.00183165, 0.002181011, 0.0025377, 0.002905316], False, 3, [1, 1, 1, 1, 1, 1, 1, 1, 1, 1, 1], False), False)
sketch5.addGeometry(Part.BSplineCurve([Vector(-29.087288, -11.842818, 0), Vector(-29.198739, -11.839828, 0), Vector(-29.4187, -11.833926, 0), Vector(-29.741341, -11.78896, 0), Vector(-30.051089, -11.717145, 0), Vector(-30.346226, -11.613123, 0), Vector(-30.628026, -11.480725, 0), Vector(-30.897012, -11.32043, 0), Vector(-31.149371, -11.126668, 0), Vector(-31.388805, -10.910072, 0), Vector(-31.604364, -10.667738, 0), Vector(-31.798182, -10.410864, 0), Vector(-31.954891, -10.133272, 0), Vector(-32.089639, -9.844103, 0), Vector(-32.18917, -9.536044, 0), Vector(-32.264954, -9.214097, 0), Vector(-32.30623, -8.874954, 0), Vector(-32.312507, -8.644387, 0), Vector(-32.315713, -8.526622, 0)], [4, 1, 1, 1, 1, 1, 1, 1, 1, 1, 1, 1, 1, 1, 1, 1, 4], [0, 0.000334258, 0.000659691, 0.000975329, 0.00128671, 0.001596555, 0.001908077, 0.002224054, 0.002549549, 0.002875178, 0.003195737, 0.00351287, 0.003829641, 0.004151243, 0.004482179, 0.00482061, 0.005173929], False, 3, [1, 1, 1, 1, 1, 1, 1, 1, 1, 1, 1, 1, 1, 1, 1, 1, 1, 1, 1], False), False)
sketch5.addGeometry(Part.LineSegment(Vector(-43.183983, -3.783203, 0), Vector(-43.183983, -13.308203, 0)), False)
sketch5.addGeometry(Part.LineSegment(Vector(-43.183983, -13.308203, 0), Vector(-44.893598, -13.308203, 0)), False)
sketch5.addGeometry(Part.LineSegment(Vector(-44.893598, -13.308203, 0), Vector(-44.893598, -3.783203, 0)), False)
sketch5.addGeometry(Part.LineSegment(Vector(-44.893598, -3.783203, 0), Vector(-43.183983, -3.783203, 0)), False)
sketch5.addConstraint(Sketcher.Constraint("Block", 4))
sketch5.addConstraint(Sketcher.Constraint("Block", 5))
sketch5.addConstraint(Sketcher.Constraint("Block", 6))
sketch5.addConstraint(Sketcher.Constraint("Block", 9))
sketch5.addConstraint(Sketcher.Constraint("Block", 10))
sketch5.addConstraint(Sketcher.Constraint("Block", 11))
sketch5.addConstraint(Sketcher.Constraint("Block", 13))
sketch5.addConstraint(Sketcher.Constraint("Block", 14))
sketch5.addConstraint(Sketcher.Constraint("Block", 15))
sketch5.addConstraint(Sketcher.Constraint("Block", 16))
sketch5.addConstraint(Sketcher.Constraint("Block", 17))
sketch5.addConstraint(Sketcher.Constraint("Block", 18))
sketch5.addConstraint(Sketcher.Constraint("Block", 19))
sketch5.addConstraint(Sketcher.Constraint("Block", 20))
sketch5.addConstraint(Sketcher.Constraint("Block", 21))
sketch5.addConstraint(Sketcher.Constraint("Coincident", 0, 2, 1, 1))
sketch5.addConstraint(Sketcher.Constraint("Coincident", 1, 2, 2, 1))
sketch5.addConstraint(Sketcher.Constraint("Coincident", 2, 2, 3, 1))
sketch5.addConstraint(Sketcher.Constraint("Coincident", 3, 2, 4, 2))
sketch5.addConstraint(Sketcher.Constraint("Coincident", 6, 1, 0, 1))
sketch5.addConstraint(Sketcher.Constraint("Coincident", 7, 2, 8, 1))
sketch5.addConstraint(Sketcher.Constraint("Coincident", 8, 2, 9, 2))
sketch5.addConstraint(Sketcher.Constraint("Coincident", 11, 1, 12, 1))
sketch5.addConstraint(Sketcher.Constraint("Coincident", 12, 2, 7, 1))
sketch5.addConstraint(Sketcher.Constraint("Coincident", 22, 2, 23, 1))
sketch5.addConstraint(Sketcher.Constraint("Coincident", 23, 2, 24, 1))
sketch5.addConstraint(Sketcher.Constraint("Coincident", 24, 2, 25, 1))
sketch5.addConstraint(Sketcher.Constraint("Coincident", 25, 2, 22, 1))
sketch5.addConstraint(Sketcher.Constraint("Horizontal", 0))
sketch5.addConstraint(Sketcher.Constraint("Vertical", 1))
sketch5.addConstraint(Sketcher.Constraint("Horizontal", 2))
sketch5.addConstraint(Sketcher.Constraint("Vertical", 3))
sketch5.addConstraint(Sketcher.Constraint("Vertical", 7))
sketch5.addConstraint(Sketcher.Constraint("Horizontal", 8))
sketch5.addConstraint(Sketcher.Constraint("Horizontal", 12))
sketch5.addConstraint(Sketcher.Constraint("Vertical", 22))
sketch5.addConstraint(Sketcher.Constraint("Horizontal", 23))
sketch5.addConstraint(Sketcher.Constraint("Vertical", 24))
sketch5.addConstraint(Sketcher.Constraint("Horizontal", 25))
sketch5.addConstraint(Sketcher.Constraint("Horizontal", 0, 2, 22, 2))
sketch5.addConstraint(Sketcher.Constraint("Horizontal", 2, 2, 24, 2))
sketch5.addConstraint(Sketcher.Constraint("Vertical", 3, 2, 7, 2))
sketch5.addConstraint(Sketcher.Constraint("Equal", 2, 23))
sketch5.addConstraint(Sketcher.Constraint("DistanceY", 1, 1, 1, 2, 9.525))
sketch5.addConstraint(Sketcher.Constraint("DistanceX", 0, 2, 0, 1, 1.908053))
sketch5.addConstraint(Sketcher.Constraint("DistanceX", 22, 2, 7, 2, 29.674038))
pocket1 = body.newObject("PartDesign::Pocket", "Pocket")
pocket1.Profile = sketch5
pocket1.Length = 1.5
pocket1.Reversed = True

sketch6 = body.newObject("Sketcher::SketchObject", "Sketch005")
sketch6.AttachmentSupport = (doc.getObject("XY_Plane"), [""])
sketch6.MapMode = "FlatFace"
sketch6.addGeometry(Part.LineSegment(Vector(-7.9, -24.1, 0), Vector(-7.9, -32.1, 0)), False)
sketch6.addGeometry(Part.LineSegment(Vector(-7.9, -32.1, 0), Vector(-30.9, -32.1, 0)), False)
sketch6.addGeometry(Part.LineSegment(Vector(-30.9, -32.1, 0), Vector(-30.9, -24.1, 0)), False)
sketch6.addGeometry(Part.LineSegment(Vector(-30.9, -24.1, 0), Vector(-7.9, -24.1, 0)), False)
sketch6.addGeometry(Part.LineSegment(Vector(-42.4, 6.9, 0), Vector(-42.4, 1.9, 0)), False)
sketch6.addGeometry(Part.LineSegment(Vector(-42.4, 1.9, 0), Vector(-47.4, 1.9, 0)), False)
sketch6.addGeometry(Part.LineSegment(Vector(-47.4, 1.9, 0), Vector(-47.4, 6.9, 0)), False)
sketch6.addGeometry(Part.LineSegment(Vector(-47.4, 6.9, 0), Vector(-42.4, 6.9, 0)), False)
sketch6.addGeometry(Part.LineSegment(Vector(-2.9, 6.9, 0), Vector(-2.9, 3.9, 0)), False)
sketch6.addGeometry(Part.LineSegment(Vector(-2.9, 3.9, 0), Vector(-5.9, 3.9, 0)), False)
sketch6.addGeometry(Part.LineSegment(Vector(-5.9, 3.9, 0), Vector(-5.9, 6.9, 0)), False)
sketch6.addGeometry(Part.LineSegment(Vector(-5.9, 6.9, 0), Vector(-2.9, 6.9, 0)), False)
sketch6.addGeometry(Part.LineSegment(Vector(-2.9, 19.9, 0), Vector(-2.9, 16.9, 0)), False)
sketch6.addGeometry(Part.LineSegment(Vector(-2.9, 16.9, 0), Vector(-5.9, 16.9, 0)), False)
sketch6.addGeometry(Part.LineSegment(Vector(-5.9, 16.9, 0), Vector(-5.9, 19.9, 0)), False)
sketch6.addGeometry(Part.LineSegment(Vector(-5.9, 19.9, 0), Vector(-2.9, 19.9, 0)), False)
sketch6.addConstraint(Sketcher.Constraint("Coincident", 0, 2, 1, 1))
sketch6.addConstraint(Sketcher.Constraint("Coincident", 1, 2, 2, 1))
sketch6.addConstraint(Sketcher.Constraint("Coincident", 2, 2, 3, 1))
sketch6.addConstraint(Sketcher.Constraint("Coincident", 3, 2, 0, 1))
sketch6.addConstraint(Sketcher.Constraint("Coincident", 4, 2, 5, 1))
sketch6.addConstraint(Sketcher.Constraint("Coincident", 5, 2, 6, 1))
sketch6.addConstraint(Sketcher.Constraint("Coincident", 6, 2, 7, 1))
sketch6.addConstraint(Sketcher.Constraint("Coincident", 7, 2, 4, 1))
sketch6.addConstraint(Sketcher.Constraint("Coincident", 8, 2, 9, 1))
sketch6.addConstraint(Sketcher.Constraint("Coincident", 9, 2, 10, 1))
sketch6.addConstraint(Sketcher.Constraint("Coincident", 10, 2, 11, 1))
sketch6.addConstraint(Sketcher.Constraint("Coincident", 11, 2, 8, 1))
sketch6.addConstraint(Sketcher.Constraint("Coincident", 12, 2, 13, 1))
sketch6.addConstraint(Sketcher.Constraint("Coincident", 13, 2, 14, 1))
sketch6.addConstraint(Sketcher.Constraint("Coincident", 14, 2, 15, 1))
sketch6.addConstraint(Sketcher.Constraint("Coincident", 15, 2, 12, 1))
sketch6.addConstraint(Sketcher.Constraint("Vertical", 0))
sketch6.addConstraint(Sketcher.Constraint("Horizontal", 1))
sketch6.addConstraint(Sketcher.Constraint("Vertical", 2))
sketch6.addConstraint(Sketcher.Constraint("Horizontal", 3))
sketch6.addConstraint(Sketcher.Constraint("Vertical", 4))
sketch6.addConstraint(Sketcher.Constraint("Horizontal", 5))
sketch6.addConstraint(Sketcher.Constraint("Vertical", 6))
sketch6.addConstraint(Sketcher.Constraint("Horizontal", 7))
sketch6.addConstraint(Sketcher.Constraint("Vertical", 8))
sketch6.addConstraint(Sketcher.Constraint("Horizontal", 9))
sketch6.addConstraint(Sketcher.Constraint("Vertical", 10))
sketch6.addConstraint(Sketcher.Constraint("Horizontal", 11))
sketch6.addConstraint(Sketcher.Constraint("Vertical", 12))
sketch6.addConstraint(Sketcher.Constraint("Horizontal", 13))
sketch6.addConstraint(Sketcher.Constraint("Vertical", 14))
sketch6.addConstraint(Sketcher.Constraint("Horizontal", 15))
sketch6.addConstraint(Sketcher.Constraint("Horizontal", 7, 2, 10, 2))
sketch6.addConstraint(Sketcher.Constraint("Vertical", 11, 2, 12, 2))
sketch6.addConstraint(Sketcher.Constraint("Vertical", 10, 2, 13, 2))
sketch6.addConstraint(Sketcher.Constraint("Equal", 7, 4))
sketch6.addConstraint(Sketcher.Constraint("Equal", 15, 8))
sketch6.addConstraint(Sketcher.Constraint("Equal", 10, 12))
sketch6.addConstraint(Sketcher.Constraint("DistanceX", 1, 2, 1, 1, 23.0))
sketch6.addConstraint(Sketcher.Constraint("DistanceX", 5, 2, 5, 1, 5.0))
sketch6.addConstraint(Sketcher.Constraint("DistanceX", 9, 2, 9, 1, 3.0))
sketch6.addConstraint(Sketcher.Constraint("DistanceY", 0, 2, 0, 1, 8.0))
sketch6.addConstraint(Sketcher.Constraint("DistanceY", 2, 2, 4, 2, 26.0))
sketch6.addConstraint(Sketcher.Constraint("DistanceX", 3, 2, 8, 2, 5.0))
sketch6.addConstraint(Sketcher.Constraint("DistanceY", 11, 2, 12, 2, 10.0))
sketch6.addConstraint(Sketcher.Constraint("DistanceX", 4, 2, 2, 2, 11.5))
sketch6.addConstraint(Sketcher.Constraint("DistanceX", 0, 2, -1, 1, 7.925806))
sketch6.addConstraint(Sketcher.Constraint("DistanceY", 0, 2, -1, 1, 32.092473))
pocket2 = body.newObject("PartDesign::Pocket", "Pocket001")
pocket2.Profile = sketch6
pocket2.Length = 3
pocket2.Reversed = True

sketch7 = body.newObject("Sketcher::SketchObject", "Sketch006")
sketch7.AttachmentSupport = (doc.getObject("XY_Plane"), [""])
sketch7.MapMode = "FlatFace"
sketch7.AttachmentOffset = App.Placement(Vector(0, 0, 2), App.Rotation())
sketch7.addGeometry(Part.LineSegment(Vector(-4.9, -38.1, 0), Vector(-8.9, -38.1, 0)), False)
sketch7.addGeometry(Part.ArcOfCircle(Part.Circle(Vector(-8.9, -40.1, 0), Vector(0, 0, 1), 2), math.radians(90), math.radians(270)), False)
sketch7.addGeometry(Part.LineSegment(Vector(-8.9, -42.1, 0), Vector(-4.9, -42.1, 0)), False)
sketch7.addGeometry(Part.ArcOfCircle(Part.Circle(Vector(-4.9, -40.1, 0), Vector(0, 0, 1), 2), math.radians(-90), math.radians(90)), False)
sketch7.addConstraint(Sketcher.Constraint("Tangent", 0, 2, 1, 1))
sketch7.addConstraint(Sketcher.Constraint("Tangent", 1, 2, 2, 1))
sketch7.addConstraint(Sketcher.Constraint("Tangent", 2, 2, 3, 1))
sketch7.addConstraint(Sketcher.Constraint("Tangent", 3, 2, 0, 1))
sketch7.addConstraint(Sketcher.Constraint("Horizontal", 0))
sketch7.addConstraint(Sketcher.Constraint("Horizontal", 2))
sketch7.addConstraint(Sketcher.Constraint("Radius", 1, 2.0))
sketch7.addConstraint(Sketcher.Constraint("DistanceX", 0, 2, 0, 1, 4.0))
sketch7.addConstraint(Sketcher.Constraint("DistanceX", 1, 3, -1, 1, 8.925806))
sketch7.addConstraint(Sketcher.Constraint("DistanceY", 1, 3, -1, 1, 40.092473))
pocket3 = body.newObject("PartDesign::Pocket", "Pocket002")
pocket3.Profile = sketch7
pocket3.Length = 10

doc.recompute()
